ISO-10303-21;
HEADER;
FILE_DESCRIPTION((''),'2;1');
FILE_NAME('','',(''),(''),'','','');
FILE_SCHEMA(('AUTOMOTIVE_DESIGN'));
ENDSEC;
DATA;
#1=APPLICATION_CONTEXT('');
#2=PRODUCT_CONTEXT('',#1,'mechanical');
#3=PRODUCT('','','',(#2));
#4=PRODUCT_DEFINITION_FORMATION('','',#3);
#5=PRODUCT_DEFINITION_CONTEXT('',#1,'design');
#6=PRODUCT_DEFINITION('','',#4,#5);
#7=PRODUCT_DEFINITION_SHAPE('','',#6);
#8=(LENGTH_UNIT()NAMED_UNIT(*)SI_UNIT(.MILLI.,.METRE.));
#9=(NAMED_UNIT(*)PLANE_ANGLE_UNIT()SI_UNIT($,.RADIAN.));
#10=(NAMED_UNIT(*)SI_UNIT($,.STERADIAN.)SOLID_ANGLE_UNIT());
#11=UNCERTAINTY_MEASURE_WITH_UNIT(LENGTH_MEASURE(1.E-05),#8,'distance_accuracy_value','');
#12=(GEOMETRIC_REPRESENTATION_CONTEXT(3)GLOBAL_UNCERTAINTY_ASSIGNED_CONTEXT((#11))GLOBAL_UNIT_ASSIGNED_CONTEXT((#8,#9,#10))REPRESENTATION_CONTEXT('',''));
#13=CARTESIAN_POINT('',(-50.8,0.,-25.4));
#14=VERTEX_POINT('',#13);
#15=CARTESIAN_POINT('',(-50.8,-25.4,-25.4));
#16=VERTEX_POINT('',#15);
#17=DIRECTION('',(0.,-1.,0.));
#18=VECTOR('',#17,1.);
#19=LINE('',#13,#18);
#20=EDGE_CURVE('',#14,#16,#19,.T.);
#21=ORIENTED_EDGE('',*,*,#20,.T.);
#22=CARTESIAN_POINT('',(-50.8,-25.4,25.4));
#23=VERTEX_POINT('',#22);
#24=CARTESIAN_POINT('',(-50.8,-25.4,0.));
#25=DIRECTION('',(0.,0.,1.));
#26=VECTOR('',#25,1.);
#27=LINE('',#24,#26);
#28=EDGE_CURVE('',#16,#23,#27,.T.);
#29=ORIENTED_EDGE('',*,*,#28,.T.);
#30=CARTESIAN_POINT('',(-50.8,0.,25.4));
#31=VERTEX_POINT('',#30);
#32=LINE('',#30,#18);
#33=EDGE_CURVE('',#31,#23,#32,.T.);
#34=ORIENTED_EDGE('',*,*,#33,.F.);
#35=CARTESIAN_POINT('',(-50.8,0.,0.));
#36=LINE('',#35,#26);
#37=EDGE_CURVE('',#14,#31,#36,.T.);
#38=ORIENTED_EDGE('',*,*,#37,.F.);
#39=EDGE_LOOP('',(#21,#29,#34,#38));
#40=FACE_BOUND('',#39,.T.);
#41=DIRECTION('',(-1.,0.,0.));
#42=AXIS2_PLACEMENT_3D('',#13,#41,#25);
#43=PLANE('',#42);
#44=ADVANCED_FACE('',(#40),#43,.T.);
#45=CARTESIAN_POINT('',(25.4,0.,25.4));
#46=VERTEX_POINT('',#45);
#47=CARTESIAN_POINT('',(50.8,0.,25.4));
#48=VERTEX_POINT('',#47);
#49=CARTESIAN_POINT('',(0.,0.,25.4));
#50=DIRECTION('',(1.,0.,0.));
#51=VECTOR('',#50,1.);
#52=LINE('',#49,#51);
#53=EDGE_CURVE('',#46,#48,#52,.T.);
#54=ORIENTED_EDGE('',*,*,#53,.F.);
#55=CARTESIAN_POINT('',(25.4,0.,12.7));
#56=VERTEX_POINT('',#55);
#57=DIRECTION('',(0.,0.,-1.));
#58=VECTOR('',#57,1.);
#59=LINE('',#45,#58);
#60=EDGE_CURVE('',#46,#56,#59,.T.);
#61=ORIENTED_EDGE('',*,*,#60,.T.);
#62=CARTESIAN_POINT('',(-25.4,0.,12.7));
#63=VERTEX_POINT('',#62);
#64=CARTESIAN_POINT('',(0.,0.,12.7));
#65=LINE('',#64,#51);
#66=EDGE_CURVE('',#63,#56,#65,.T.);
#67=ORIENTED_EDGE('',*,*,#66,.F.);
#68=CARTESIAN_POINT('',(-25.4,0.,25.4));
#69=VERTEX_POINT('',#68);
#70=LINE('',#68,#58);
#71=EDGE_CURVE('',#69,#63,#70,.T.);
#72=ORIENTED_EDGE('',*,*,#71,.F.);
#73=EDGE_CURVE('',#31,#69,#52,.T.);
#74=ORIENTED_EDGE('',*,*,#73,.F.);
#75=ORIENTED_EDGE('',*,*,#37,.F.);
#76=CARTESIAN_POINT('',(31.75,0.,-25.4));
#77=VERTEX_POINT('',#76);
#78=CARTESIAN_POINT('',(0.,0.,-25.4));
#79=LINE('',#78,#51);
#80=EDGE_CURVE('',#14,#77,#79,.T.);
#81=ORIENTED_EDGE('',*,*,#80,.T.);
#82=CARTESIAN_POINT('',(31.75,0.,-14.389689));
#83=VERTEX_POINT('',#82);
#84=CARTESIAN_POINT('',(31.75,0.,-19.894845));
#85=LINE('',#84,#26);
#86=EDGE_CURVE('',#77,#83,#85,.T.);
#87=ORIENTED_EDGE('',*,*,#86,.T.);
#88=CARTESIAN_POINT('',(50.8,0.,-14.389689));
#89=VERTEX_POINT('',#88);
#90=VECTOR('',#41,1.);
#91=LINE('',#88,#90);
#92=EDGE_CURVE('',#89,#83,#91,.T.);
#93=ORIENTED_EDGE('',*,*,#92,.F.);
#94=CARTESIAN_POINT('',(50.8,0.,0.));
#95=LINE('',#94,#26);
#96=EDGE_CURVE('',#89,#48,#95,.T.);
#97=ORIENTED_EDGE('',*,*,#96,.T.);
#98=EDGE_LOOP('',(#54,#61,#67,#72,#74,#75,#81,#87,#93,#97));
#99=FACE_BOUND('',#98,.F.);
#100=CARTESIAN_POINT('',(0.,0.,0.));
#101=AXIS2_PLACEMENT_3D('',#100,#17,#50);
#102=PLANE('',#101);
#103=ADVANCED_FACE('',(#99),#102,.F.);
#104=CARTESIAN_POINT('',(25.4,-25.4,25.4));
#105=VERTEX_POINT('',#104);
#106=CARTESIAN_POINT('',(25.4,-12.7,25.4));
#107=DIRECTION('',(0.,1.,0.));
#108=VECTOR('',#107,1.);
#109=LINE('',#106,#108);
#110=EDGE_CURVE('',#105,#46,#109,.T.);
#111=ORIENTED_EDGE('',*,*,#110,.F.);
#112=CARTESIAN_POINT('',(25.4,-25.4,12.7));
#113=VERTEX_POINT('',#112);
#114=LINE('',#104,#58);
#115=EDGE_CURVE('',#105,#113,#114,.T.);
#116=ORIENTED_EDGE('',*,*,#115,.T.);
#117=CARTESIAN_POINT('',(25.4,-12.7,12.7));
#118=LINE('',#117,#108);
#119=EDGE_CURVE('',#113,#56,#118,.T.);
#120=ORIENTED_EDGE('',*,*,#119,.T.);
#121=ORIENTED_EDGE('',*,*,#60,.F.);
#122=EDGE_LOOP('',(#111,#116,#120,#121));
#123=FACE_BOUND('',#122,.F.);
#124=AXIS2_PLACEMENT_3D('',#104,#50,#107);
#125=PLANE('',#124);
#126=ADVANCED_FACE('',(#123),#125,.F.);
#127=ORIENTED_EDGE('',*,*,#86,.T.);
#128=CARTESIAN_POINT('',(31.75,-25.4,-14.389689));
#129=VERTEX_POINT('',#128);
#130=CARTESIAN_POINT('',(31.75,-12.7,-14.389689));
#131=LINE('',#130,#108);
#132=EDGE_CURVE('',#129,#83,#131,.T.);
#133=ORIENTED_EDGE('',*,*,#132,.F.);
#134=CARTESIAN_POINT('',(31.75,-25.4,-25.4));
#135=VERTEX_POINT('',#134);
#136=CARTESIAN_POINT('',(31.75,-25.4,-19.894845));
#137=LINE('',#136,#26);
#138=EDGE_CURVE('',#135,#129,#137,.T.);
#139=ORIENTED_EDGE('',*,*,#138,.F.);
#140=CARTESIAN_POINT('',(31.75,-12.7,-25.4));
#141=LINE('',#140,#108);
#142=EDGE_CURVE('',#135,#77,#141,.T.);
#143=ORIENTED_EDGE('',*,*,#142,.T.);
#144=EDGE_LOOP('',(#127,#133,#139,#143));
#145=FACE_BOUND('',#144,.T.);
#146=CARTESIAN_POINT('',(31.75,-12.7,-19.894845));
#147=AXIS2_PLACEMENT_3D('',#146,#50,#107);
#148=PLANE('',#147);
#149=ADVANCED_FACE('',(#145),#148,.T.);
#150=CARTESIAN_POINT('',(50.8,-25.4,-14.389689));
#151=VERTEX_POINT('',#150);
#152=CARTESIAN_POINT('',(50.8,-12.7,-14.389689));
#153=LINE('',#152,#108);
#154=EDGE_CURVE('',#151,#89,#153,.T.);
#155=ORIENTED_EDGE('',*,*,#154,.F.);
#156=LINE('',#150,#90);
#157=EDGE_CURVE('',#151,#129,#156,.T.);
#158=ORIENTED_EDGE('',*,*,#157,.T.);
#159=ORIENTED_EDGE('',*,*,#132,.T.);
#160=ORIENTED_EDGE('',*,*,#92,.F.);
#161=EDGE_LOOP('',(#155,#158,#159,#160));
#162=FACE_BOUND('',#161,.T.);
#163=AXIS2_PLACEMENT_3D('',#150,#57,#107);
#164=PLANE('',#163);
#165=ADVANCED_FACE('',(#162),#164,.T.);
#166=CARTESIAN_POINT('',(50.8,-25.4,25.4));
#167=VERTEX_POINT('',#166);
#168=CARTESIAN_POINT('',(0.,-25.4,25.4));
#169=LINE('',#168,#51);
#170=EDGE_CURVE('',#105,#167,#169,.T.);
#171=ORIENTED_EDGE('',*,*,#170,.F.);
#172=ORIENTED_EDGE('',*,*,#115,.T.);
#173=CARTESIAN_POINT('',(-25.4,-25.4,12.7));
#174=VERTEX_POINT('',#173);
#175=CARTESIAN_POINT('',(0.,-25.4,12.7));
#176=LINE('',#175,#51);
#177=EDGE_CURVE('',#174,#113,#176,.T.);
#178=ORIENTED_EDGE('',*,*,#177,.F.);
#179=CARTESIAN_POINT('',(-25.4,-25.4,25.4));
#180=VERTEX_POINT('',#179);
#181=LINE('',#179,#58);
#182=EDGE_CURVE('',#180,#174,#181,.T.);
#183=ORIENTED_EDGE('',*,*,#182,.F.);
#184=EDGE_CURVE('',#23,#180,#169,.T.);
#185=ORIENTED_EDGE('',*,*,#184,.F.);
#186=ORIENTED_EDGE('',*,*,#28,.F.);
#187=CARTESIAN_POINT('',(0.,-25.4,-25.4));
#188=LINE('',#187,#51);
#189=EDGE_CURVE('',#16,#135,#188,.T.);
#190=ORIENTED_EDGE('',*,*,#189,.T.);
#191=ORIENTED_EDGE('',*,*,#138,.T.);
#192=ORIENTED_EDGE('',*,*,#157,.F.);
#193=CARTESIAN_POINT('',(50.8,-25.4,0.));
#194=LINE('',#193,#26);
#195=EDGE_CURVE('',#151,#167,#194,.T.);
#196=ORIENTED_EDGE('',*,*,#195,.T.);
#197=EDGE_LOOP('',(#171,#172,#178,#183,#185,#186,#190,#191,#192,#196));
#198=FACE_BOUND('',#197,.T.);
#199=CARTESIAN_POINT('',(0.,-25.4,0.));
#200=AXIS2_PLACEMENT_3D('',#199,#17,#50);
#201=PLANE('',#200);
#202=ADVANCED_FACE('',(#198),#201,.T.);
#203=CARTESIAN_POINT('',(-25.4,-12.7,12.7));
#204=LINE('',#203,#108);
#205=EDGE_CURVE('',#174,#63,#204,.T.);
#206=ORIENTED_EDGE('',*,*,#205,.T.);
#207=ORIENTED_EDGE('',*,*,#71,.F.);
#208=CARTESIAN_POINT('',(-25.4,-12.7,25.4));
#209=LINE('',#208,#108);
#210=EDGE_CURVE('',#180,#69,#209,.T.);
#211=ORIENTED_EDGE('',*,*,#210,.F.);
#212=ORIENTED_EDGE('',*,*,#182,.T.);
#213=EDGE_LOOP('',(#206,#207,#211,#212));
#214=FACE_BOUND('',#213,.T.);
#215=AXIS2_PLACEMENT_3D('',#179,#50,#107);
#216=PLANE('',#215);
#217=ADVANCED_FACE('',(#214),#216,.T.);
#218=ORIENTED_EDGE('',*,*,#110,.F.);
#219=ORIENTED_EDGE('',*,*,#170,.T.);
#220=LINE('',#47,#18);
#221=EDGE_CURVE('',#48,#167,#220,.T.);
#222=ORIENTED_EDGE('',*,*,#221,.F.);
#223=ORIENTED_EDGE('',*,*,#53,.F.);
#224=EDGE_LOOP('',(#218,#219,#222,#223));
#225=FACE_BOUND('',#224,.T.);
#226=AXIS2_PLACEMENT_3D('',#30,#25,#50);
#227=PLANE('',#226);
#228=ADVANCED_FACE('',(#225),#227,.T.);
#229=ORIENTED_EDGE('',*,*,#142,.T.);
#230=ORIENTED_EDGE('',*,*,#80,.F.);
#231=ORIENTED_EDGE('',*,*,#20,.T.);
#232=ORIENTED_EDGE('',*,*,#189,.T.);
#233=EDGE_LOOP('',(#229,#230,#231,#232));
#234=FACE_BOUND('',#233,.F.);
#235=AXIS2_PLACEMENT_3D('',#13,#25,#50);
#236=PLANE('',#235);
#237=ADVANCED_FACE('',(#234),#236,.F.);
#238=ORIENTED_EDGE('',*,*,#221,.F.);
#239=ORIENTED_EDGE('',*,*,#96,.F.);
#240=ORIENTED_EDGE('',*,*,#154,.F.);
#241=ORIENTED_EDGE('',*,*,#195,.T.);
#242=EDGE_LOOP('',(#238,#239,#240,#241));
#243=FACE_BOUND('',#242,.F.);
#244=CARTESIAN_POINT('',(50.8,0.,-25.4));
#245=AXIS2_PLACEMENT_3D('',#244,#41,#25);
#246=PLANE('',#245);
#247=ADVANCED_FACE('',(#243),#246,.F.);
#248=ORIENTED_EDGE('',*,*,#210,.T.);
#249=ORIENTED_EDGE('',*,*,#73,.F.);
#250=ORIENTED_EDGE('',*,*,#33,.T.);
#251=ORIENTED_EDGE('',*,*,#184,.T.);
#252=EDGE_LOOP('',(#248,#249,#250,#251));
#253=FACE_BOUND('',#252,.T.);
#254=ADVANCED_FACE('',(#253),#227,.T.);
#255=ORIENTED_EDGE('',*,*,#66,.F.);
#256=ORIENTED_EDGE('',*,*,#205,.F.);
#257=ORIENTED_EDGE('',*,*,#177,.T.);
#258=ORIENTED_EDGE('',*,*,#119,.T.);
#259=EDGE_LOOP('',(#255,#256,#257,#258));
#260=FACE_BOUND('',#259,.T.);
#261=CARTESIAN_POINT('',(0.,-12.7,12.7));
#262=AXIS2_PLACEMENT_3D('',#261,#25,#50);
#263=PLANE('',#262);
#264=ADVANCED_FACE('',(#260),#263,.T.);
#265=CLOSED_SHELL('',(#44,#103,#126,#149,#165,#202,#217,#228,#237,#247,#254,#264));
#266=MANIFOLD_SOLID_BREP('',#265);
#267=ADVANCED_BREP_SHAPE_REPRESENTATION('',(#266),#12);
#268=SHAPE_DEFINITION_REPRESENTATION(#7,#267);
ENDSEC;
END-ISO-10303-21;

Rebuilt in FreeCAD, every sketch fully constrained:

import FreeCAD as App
import Part
import Sketcher
Q = App.Units.Quantity


def add_polygon(sketch, points):
    """Adds a closed chain of lines whose ends are joined by coincident constraints."""
    first, n = sketch.GeometryCount, len(points)
    for a, b in zip(points, points[1:] + points[:1]):
        sketch.addGeometry(Part.LineSegment(App.Vector(*a, 0), App.Vector(*b, 0)), False)
    for i in range(n):
        sketch.addConstraint(Sketcher.Constraint("Coincident", first + i, 2, first + (i + 1) % n, 1))

doc = App.newDocument("Part")
body = doc.addObject("PartDesign::Body", "Body")

# Sketch on XZ plane
sketch1 = body.newObject("Sketcher::SketchObject", "Sketch")
sketch1.AttachmentSupport = (doc.getObject("XZ_Plane"), [""])
sketch1.MapMode = "FlatFace"
add_polygon(sketch1, [(-51, 25), (-51, -25), (51, -25), (51, 25)])  # lines 0-3
sketch1.addConstraint([
    Sketcher.Constraint("Vertical", 0),
    Sketcher.Constraint("Horizontal", 1),
    Sketcher.Constraint("Vertical", 2),
    Sketcher.Constraint("Horizontal", 3),
    Sketcher.Constraint("Symmetric", 0, 2, 2, 2, -1, 1),
    Sketcher.Constraint("DistanceX", 1, 1, 1, 2, Q("4 in")),
    Sketcher.Constraint("DistanceY", 0, 2, 0, 1, Q("2 in")),
])
pad1 = body.newObject("PartDesign::Pad", "Pad")
pad1.Profile = sketch1
pad1.Length = Q("1 in")

# Sketch on XY plane
sketch2 = body.newObject("Sketcher::SketchObject", "Sketch001")
sketch2.AttachmentSupport = (doc.getObject("XY_Plane"), [""])
sketch2.MapMode = "FlatFace"
sketch2.AttachmentOffset = App.Placement(App.Vector(0, 0, 1 * 25.4), App.Rotation())
add_polygon(sketch2, [(-25, 0), (-25, -25), (25, -25), (25, 0)])  # lines 0-3
sketch2.addConstraint([
    Sketcher.Constraint("Vertical", 0),
    Sketcher.Constraint("Horizontal", 1),
    Sketcher.Constraint("Vertical", 2),
    Sketcher.Constraint("Horizontal", 3),
    Sketcher.Constraint("Symmetric", 2, 2, 3, 2, -1, 1),
    Sketcher.Constraint("DistanceX", 1, 1, 1, 2, Q("2 in")),
    Sketcher.Constraint("DistanceY", 0, 2, 0, 1, Q("1 in")),
])
pocket1 = body.newObject("PartDesign::Pocket", "Pocket")
pocket1.Profile = sketch2
pocket1.Length = Q("0.5 in")

# Sketch on YZ plane
sketch3 = body.newObject("Sketcher::SketchObject", "Sketch002")
sketch3.AttachmentSupport = (doc.getObject("YZ_Plane"), [""])
sketch3.MapMode = "FlatFace"
sketch3.AttachmentOffset = App.Placement(App.Vector(0, 0, 2 * 25.4), App.Rotation())
add_polygon(sketch3, [(-25, -14), (-25, -25), (0, -25), (0, -14)])  # lines 0-3
sketch3.addConstraint([
    Sketcher.Constraint("Vertical", 0),
    Sketcher.Constraint("Horizontal", 1),
    Sketcher.Constraint("Vertical", 2),
    Sketcher.Constraint("Horizontal", 3),
    Sketcher.Constraint("PointOnObject", 1, 2, -2),
    Sketcher.Constraint("DistanceX", 1, 1, 1, 2, Q("1 in")),
    Sketcher.Constraint("DistanceY", 0, 2, -1, 1, Q("1 in")),
    Sketcher.Constraint("DistanceY", 0, 2, 0, 1, 11.010311),
])
pocket2 = body.newObject("PartDesign::Pocket", "Pocket001")
pocket2.Profile = sketch3
pocket2.Length = Q("0.75 in")

doc.recompute()
